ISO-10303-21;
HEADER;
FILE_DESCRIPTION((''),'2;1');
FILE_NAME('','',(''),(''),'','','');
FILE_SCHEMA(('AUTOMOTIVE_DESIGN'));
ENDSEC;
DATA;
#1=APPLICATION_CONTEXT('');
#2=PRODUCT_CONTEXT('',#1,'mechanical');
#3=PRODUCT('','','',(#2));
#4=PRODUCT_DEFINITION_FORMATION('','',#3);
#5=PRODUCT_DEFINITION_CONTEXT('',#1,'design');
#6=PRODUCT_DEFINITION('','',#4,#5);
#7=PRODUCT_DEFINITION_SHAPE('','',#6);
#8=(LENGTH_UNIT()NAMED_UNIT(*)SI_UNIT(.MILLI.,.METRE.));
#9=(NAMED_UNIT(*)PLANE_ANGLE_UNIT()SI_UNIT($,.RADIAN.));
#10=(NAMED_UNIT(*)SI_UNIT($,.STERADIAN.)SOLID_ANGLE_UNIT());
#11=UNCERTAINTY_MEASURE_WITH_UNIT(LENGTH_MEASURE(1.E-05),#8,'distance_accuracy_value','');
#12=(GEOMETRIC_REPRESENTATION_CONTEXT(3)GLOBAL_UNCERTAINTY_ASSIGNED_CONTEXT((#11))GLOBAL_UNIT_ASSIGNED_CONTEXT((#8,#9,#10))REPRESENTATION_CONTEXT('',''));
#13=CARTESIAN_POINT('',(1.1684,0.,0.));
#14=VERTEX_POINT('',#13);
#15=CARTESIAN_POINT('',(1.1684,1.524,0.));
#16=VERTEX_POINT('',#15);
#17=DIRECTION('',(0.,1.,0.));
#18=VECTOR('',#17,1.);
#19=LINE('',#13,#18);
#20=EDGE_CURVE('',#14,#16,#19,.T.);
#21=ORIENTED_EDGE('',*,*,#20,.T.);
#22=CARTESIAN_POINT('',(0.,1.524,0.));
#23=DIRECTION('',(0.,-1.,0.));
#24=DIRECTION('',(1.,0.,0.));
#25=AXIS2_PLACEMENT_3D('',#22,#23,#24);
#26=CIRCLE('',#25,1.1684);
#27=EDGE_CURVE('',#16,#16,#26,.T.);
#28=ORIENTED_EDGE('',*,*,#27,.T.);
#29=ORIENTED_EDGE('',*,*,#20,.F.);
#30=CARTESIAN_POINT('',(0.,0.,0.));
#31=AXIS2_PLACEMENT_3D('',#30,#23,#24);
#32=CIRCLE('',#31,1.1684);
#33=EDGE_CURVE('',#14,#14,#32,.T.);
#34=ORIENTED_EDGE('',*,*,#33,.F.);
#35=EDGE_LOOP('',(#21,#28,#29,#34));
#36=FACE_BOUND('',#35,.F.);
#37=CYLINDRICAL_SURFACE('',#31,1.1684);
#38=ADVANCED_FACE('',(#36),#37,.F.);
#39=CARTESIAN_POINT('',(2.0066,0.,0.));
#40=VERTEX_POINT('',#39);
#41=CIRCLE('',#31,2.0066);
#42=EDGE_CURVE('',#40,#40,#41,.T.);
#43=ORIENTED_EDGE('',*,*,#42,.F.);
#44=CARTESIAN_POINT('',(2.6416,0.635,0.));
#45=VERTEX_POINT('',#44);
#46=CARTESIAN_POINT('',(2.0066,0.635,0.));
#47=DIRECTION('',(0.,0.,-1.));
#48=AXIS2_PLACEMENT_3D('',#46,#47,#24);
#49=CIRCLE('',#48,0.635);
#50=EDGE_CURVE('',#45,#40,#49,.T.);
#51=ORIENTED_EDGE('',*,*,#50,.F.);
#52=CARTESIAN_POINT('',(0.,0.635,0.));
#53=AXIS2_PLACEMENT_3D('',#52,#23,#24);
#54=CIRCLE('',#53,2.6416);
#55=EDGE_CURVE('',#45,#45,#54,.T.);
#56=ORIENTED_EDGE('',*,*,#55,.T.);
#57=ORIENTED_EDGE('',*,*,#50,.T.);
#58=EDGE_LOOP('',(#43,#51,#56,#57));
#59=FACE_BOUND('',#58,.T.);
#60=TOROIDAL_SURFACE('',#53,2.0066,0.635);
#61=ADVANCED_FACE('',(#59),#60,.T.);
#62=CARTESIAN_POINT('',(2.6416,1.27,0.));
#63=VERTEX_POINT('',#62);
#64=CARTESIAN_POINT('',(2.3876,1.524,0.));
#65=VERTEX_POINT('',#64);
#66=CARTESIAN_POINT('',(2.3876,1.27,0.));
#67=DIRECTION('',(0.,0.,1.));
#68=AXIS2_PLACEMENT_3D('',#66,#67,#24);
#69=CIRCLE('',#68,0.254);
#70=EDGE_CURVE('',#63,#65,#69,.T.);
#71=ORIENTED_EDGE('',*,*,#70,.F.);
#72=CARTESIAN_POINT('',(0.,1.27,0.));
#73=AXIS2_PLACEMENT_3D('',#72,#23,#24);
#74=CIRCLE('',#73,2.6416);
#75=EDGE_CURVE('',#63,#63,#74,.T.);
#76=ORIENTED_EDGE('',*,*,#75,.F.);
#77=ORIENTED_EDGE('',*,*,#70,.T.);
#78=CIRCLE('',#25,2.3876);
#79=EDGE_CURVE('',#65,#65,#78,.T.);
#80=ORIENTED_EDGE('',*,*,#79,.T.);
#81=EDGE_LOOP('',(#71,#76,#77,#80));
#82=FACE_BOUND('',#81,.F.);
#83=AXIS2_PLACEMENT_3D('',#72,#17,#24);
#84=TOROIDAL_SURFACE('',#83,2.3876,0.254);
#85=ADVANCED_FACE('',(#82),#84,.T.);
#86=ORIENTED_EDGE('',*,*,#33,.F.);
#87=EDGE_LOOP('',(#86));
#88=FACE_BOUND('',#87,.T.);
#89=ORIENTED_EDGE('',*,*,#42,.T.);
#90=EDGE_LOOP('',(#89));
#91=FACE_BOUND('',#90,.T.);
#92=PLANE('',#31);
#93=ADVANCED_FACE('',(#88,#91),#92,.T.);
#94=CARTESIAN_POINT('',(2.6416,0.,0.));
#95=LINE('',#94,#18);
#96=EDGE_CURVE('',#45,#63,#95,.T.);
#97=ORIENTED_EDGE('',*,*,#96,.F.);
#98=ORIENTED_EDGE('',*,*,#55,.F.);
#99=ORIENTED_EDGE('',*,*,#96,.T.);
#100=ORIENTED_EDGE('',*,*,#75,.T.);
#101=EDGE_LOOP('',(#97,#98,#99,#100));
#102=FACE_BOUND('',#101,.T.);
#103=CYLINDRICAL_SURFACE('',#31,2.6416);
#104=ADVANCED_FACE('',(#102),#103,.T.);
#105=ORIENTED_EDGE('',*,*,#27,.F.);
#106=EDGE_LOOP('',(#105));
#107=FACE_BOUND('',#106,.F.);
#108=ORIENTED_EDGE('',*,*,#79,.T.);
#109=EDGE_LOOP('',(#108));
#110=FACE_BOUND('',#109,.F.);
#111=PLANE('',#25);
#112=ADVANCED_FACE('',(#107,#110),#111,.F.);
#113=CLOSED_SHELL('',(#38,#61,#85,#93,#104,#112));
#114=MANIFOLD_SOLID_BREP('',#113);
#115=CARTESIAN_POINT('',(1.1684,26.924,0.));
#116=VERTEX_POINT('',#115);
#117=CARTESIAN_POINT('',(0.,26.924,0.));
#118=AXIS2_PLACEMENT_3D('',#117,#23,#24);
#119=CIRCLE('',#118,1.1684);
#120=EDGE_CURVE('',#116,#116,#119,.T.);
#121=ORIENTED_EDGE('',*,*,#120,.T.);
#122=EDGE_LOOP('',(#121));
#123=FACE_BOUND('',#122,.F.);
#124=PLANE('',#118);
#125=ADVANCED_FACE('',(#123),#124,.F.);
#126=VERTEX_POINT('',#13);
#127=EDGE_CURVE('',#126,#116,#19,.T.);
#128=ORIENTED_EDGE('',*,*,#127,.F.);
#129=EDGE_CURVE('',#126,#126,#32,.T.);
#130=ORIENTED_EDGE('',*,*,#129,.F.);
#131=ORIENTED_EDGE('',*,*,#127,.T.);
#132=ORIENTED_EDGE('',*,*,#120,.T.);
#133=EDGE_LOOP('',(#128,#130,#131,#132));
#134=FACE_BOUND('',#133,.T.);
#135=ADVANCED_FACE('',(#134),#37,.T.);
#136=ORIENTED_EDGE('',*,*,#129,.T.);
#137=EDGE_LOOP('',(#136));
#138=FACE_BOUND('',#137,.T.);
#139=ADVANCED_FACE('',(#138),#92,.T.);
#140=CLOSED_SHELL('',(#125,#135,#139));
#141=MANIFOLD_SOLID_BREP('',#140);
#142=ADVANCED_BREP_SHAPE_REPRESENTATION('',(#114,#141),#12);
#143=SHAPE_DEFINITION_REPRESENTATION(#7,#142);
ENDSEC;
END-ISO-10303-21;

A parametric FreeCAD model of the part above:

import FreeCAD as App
import Part
import Sketcher
from FreeCAD import Vector
Q = App.Units.Quantity


def edges_at(feature, points):
    """Names of the edges that pass closest to the given points."""
    edges = feature.Shape.Edges
    near = lambda p: min(range(len(edges)), key=lambda i: edges[i].distToShape(Part.Vertex(*p))[0])
    return sorted({f"Edge{near(p) + 1}" for p in points})

doc = App.newDocument("Part")
params = doc.addObject("Spreadsheet::Sheet", "Params")
for row, (alias, value) in enumerate([
    ("sketch1_diameter", "0.208 in"),
    ("sketch1_diameter2", "0.092 in"),
    ("pad1_length", "0.06 in"),
    ("fillet_radius", "0.025 in"),
    ("fillet2_radius", "0.01 in"),
    ("sketch2_diameter", "0.092 in"),
    ("pad2_length", "1.06 in"),
], start=1):
    params.set(f"A{row}", alias)
    params.set(f"B{row}", "=" + value)
    params.setAlias(f"B{row}", alias)

body = doc.addObject("PartDesign::Body", "Body")

# Sketch on XZ plane
sketch1 = body.newObject("Sketcher::SketchObject", "Sketch")
sketch1.AttachmentSupport = (doc.getObject("XZ_Plane"), [""])
sketch1.MapMode = "FlatFace"
sketch1.addGeometry([
    Part.Circle(Vector(0, 0, 0), Vector(0, 0, 1), 2.6),
    Part.Circle(Vector(0, 0, 0), Vector(0, 0, 1), 1.2),
], False)
sketch1.addConstraint([
    Sketcher.Constraint("Coincident", 0, 3, -1, 1),
    Sketcher.Constraint("Coincident", 1, 3, -1, 1),
    Sketcher.Constraint("Diameter", 0, Q("0.208 in")),
    Sketcher.Constraint("Diameter", 1, Q("0.092 in")),
])
sketch1.setExpression("Constraints[2]", "Params.sketch1_diameter")
sketch1.setExpression("Constraints[3]", "Params.sketch1_diameter2")
pad1 = body.newObject("PartDesign::Pad", "Pad")
pad1.Profile = sketch1
pad1.setExpression("Length", "Params.pad1_length")
pad1.Reversed = True
doc.recompute()

fillet = body.newObject("PartDesign::Fillet", "Fillet")
fillet.Base = (pad1, edges_at(pad1, [(-2.642, 0, 0)]))
fillet.setExpression("Radius", "Params.fillet_radius")
doc.recompute()

fillet2 = body.newObject("PartDesign::Fillet", "Fillet001")
fillet2.Base = (fillet, edges_at(fillet, [(-2.642, 1.524, 0)]))
fillet2.setExpression("Radius", "Params.fillet2_radius")
body2 = doc.addObject("PartDesign::Body", "Body001")

# Sketch on XZ plane
sketch2 = body2.newObject("Sketcher::SketchObject", "Sketch001")
sketch2.AttachmentSupport = (doc.getObject("XZ_Plane001"), [""])
sketch2.MapMode = "FlatFace"
sketch2.addGeometry(Part.Circle(Vector(0, 0, 0), Vector(0, 0, 1), 1.2), False)
sketch2.addConstraint([
    Sketcher.Constraint("Coincident", 0, 3, -1, 1),
    Sketcher.Constraint("Diameter", 0, Q("0.092 in")),
])
sketch2.setExpression("Constraints[1]", "Params.sketch2_diameter")
pad2 = body2.newObject("PartDesign::Pad", "Pad001")
pad2.Profile = sketch2
pad2.setExpression("Length", "Params.pad2_length")
pad2.Reversed = True

doc.recompute()
